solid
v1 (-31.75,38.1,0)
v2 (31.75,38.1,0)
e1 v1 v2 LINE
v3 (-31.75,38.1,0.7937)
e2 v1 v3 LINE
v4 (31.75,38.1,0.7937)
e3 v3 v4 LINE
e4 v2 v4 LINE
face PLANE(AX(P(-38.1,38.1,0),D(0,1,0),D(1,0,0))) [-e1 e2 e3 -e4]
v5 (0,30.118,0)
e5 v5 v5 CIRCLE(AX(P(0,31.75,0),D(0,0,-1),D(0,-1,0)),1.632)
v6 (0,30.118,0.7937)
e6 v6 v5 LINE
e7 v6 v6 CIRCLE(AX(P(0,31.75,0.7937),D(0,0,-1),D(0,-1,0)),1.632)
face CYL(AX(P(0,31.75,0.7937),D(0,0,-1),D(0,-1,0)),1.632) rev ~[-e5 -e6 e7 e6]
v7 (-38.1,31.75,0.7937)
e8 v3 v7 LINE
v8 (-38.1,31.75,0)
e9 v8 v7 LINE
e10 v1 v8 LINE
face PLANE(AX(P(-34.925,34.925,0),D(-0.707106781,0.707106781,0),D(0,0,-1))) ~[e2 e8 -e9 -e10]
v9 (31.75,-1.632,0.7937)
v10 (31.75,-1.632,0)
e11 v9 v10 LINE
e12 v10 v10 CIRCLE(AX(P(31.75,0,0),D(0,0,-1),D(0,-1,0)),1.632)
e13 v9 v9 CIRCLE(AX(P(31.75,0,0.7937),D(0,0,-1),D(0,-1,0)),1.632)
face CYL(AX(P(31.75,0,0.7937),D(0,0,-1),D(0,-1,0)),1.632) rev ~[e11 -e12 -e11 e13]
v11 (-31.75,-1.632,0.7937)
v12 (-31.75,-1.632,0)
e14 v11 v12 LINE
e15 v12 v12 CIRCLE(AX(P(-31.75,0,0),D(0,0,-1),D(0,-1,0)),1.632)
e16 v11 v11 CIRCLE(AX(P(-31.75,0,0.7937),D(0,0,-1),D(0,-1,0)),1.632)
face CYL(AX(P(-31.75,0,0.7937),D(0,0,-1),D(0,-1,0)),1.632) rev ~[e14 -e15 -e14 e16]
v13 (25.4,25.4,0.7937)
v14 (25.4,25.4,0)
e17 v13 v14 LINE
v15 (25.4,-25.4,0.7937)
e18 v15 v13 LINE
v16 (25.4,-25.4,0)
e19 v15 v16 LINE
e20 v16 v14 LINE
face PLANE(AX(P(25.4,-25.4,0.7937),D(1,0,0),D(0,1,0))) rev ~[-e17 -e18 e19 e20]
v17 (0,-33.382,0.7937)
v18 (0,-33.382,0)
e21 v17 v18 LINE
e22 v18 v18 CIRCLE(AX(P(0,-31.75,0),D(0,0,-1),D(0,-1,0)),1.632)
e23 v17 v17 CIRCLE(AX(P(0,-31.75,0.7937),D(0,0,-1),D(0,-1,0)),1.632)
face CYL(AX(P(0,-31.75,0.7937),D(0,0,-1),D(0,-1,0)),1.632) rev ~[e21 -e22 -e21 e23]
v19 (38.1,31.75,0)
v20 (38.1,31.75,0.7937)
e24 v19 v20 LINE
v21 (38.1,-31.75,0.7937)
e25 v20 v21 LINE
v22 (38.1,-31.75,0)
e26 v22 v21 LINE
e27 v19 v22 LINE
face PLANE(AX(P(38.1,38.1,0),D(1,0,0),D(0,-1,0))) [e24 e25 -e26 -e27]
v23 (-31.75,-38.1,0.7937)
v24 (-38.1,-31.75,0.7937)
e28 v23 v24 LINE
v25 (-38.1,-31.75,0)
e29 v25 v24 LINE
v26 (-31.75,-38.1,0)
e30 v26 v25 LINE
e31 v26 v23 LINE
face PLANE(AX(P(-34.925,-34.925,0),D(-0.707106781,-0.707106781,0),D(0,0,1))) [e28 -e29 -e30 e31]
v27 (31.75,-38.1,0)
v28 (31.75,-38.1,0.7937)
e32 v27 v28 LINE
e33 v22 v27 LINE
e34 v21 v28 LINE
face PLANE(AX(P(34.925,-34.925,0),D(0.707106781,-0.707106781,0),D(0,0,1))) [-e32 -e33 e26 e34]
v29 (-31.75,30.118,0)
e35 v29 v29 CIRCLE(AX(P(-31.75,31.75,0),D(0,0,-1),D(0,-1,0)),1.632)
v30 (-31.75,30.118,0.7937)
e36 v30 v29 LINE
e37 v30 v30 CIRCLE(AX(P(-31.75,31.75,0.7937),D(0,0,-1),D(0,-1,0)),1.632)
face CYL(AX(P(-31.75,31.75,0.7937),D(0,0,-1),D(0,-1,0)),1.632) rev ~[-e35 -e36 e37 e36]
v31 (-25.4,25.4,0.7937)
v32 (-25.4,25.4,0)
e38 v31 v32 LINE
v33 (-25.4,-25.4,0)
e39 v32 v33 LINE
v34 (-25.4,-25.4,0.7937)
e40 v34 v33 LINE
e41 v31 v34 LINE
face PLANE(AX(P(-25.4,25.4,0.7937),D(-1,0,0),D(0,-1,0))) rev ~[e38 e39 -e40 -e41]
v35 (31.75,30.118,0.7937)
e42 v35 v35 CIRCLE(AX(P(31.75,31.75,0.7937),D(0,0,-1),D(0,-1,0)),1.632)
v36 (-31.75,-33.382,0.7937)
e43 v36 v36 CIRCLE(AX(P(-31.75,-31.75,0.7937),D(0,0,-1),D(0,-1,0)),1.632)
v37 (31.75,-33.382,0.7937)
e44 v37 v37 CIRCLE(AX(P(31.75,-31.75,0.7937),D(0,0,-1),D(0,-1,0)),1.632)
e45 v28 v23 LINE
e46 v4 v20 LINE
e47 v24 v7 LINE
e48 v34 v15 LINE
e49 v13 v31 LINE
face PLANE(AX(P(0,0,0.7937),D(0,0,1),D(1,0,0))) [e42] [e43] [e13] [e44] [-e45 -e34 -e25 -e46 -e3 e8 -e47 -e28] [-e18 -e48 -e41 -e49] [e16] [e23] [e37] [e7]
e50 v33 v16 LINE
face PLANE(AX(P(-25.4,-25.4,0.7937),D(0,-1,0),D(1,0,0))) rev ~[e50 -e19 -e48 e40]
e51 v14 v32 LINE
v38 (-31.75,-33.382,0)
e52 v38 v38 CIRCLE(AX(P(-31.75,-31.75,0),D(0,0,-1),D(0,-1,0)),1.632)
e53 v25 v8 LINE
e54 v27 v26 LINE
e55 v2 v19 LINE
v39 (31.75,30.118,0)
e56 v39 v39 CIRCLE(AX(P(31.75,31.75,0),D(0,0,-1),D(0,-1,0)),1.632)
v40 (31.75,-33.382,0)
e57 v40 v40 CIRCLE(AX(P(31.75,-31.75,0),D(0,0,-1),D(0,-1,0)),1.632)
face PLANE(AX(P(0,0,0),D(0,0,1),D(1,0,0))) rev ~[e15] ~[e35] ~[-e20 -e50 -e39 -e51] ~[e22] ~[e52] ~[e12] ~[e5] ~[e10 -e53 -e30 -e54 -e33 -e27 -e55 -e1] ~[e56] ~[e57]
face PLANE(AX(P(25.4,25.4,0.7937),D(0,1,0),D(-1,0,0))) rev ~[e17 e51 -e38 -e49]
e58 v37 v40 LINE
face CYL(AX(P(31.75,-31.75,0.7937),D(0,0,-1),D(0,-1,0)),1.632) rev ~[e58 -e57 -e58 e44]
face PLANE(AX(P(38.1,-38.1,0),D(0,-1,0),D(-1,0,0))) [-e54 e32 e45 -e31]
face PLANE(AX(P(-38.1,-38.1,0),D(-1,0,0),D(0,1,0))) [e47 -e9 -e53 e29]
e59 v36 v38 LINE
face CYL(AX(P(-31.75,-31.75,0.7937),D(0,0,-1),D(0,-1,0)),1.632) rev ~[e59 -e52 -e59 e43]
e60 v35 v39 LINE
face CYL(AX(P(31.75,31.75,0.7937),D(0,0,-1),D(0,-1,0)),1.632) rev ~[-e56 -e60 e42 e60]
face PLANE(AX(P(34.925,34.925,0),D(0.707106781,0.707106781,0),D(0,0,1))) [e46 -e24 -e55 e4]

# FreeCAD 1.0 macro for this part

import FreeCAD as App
import Part
import Sketcher
Q = App.Units.Quantity


def edges_at(feature, points):
    """Names of the edges that pass closest to the given points."""
    edges = feature.Shape.Edges
    near = lambda p: min(range(len(edges)), key=lambda i: edges[i].distToShape(Part.Vertex(*p))[0])
    return sorted({f"Edge{near(p) + 1}" for p in points})


def add_polygon(sketch, points):
    """Adds a closed chain of lines whose ends are joined by coincident constraints."""
    first, n = sketch.GeometryCount, len(points)
    for a, b in zip(points, points[1:] + points[:1]):
        sketch.addGeometry(Part.LineSegment(App.Vector(*a, 0), App.Vector(*b, 0)), False)
    for i in range(n):
        sketch.addConstraint(Sketcher.Constraint("Coincident", first + i, 2, first + (i + 1) % n, 1))

doc = App.newDocument("Part")
body = doc.addObject("PartDesign::Body", "Body")

# Sketch on XY plane
sketch1 = body.newObject("Sketcher::SketchObject", "Sketch")
sketch1.AttachmentSupport = (doc.getObject("XY_Plane"), [""])
sketch1.MapMode = "FlatFace"
add_polygon(sketch1, [(38, 38), (-38, 38), (-38, -38), (38, -38)])  # lines 0-3
sketch1.addConstraint([
    Sketcher.Constraint("Horizontal", 0),
    Sketcher.Constraint("Vertical", 1),
    Sketcher.Constraint("Horizontal", 2),
    Sketcher.Constraint("Vertical", 3),
    Sketcher.Constraint("Symmetric", 0, 2, 2, 2, -1, 1),
    Sketcher.Constraint("Equal", 2, 1),
    Sketcher.Constraint("DistanceX", 0, 2, 0, 1, Q("3 in")),
])
pad1 = body.newObject("PartDesign::Pad", "Pad")
pad1.Profile = sketch1
pad1.Length = Q("0.031248 in")
doc.recompute()

chamfer = body.newObject("PartDesign::Chamfer", "Chamfer")
chamfer.Base = (pad1, edges_at(pad1, [
    (38.1, 38.1, 0.397),
    (-38.1, 38.1, 0.397),
    (38.1, -38.1, 0.397),
    (-38.1, -38.1, 0.397),
]))
chamfer.Size = Q("0.25 in")

# Sketch on XY plane
sketch2 = body.newObject("Sketcher::SketchObject", "Sketch001")
sketch2.AttachmentSupport = (doc.getObject("XY_Plane"), [""])
sketch2.MapMode = "FlatFace"
sketch2.AttachmentOffset = App.Placement(App.Vector(0, 0, 0.031248 * 25.4), App.Rotation())
sketch2.addGeometry([
    Part.Circle(App.Vector(-31.8, 31.8, 0), App.Vector(0, 0, 1), 1.6),  # 0
    Part.Circle(App.Vector(0, 31.8, 0), App.Vector(0, 0, 1), 1.6),  # 1
    Part.Circle(App.Vector(31.8, 31.8, 0), App.Vector(0, 0, 1), 1.6),  # 2
    Part.Circle(App.Vector(31.8, 0, 0), App.Vector(0, 0, 1), 1.6),  # 3
    Part.Circle(App.Vector(31.8, -31.8, 0), App.Vector(0, 0, 1), 1.6),  # 4
    Part.Circle(App.Vector(0, -31.8, 0), App.Vector(0, 0, 1), 1.6),  # 5
    Part.Circle(App.Vector(-31.8, -31.8, 0), App.Vector(0, 0, 1), 1.6),  # 6
    Part.Circle(App.Vector(-31.8, 0, 0), App.Vector(0, 0, 1), 1.6),  # 7
], False)
sketch2.addConstraint([
    Sketcher.Constraint("Equal", 0, 1),
    Sketcher.Constraint("Equal", 1, 2),
    Sketcher.Constraint("Equal", 2, 3),
    Sketcher.Constraint("Equal", 3, 4),
    Sketcher.Constraint("Equal", 4, 5),
    Sketcher.Constraint("Equal", 5, 6),
    Sketcher.Constraint("Equal", 6, 7),
    Sketcher.Constraint("Symmetric", 0, 3, 4, 3, -1, 1),
    Sketcher.Constraint("Symmetric", 1, 3, 5, 3, -1, 1),
    Sketcher.Constraint("Symmetric", 2, 3, 6, 3, -1, 1),
    Sketcher.Constraint("Symmetric", 3, 3, 7, 3, -1, 1),
    Sketcher.Constraint("Symmetric", 0, 3, 2, 3, -2),
    Sketcher.Constraint("PointOnObject", 1, 3, -2),
    Sketcher.Constraint("PointOnObject", 3, 3, -1),
    Sketcher.Constraint("Horizontal", 0, 3, 1, 3),
    Sketcher.Constraint("Vertical", 2, 3, 3, 3),
    Sketcher.Constraint("Diameter", 0, Q("0.1285 in")),
    Sketcher.Constraint("DistanceX", 0, 3, 2, 3, Q("2.5 in")),
    Sketcher.Constraint("DistanceY", 4, 3, 2, 3, Q("2.5 in")),
])
doc.recompute()
hole = body.newObject("PartDesign::Hole", "Hole")
hole.Profile = sketch2
hole.ThreadType = "None"
hole.Diameter = Q("0.1285039 in")
hole.DepthType = "ThroughAll"

# Sketch on XY plane
sketch3 = body.newObject("Sketcher::SketchObject", "Sketch002")
sketch3.AttachmentSupport = (doc.getObject("XY_Plane"), [""])
sketch3.MapMode = "FlatFace"
sketch3.AttachmentOffset = App.Placement(App.Vector(0, 0, 0.031248 * 25.4), App.Rotation())
add_polygon(sketch3, [(-25, 25), (-25, -25), (25, -25), (25, 25)])  # lines 0-3
sketch3.addConstraint([
    Sketcher.Constraint("Vertical", 0),
    Sketcher.Constraint("Horizontal", 1),
    Sketcher.Constraint("Vertical", 2),
    Sketcher.Constraint("Horizontal", 3),
    Sketcher.Constraint("Symmetric", 0, 2, 2, 2, -1, 1),
    Sketcher.Constraint("Equal", 3, 0),
    Sketcher.Constraint("DistanceX", 1, 1, 1, 2, Q("2 in")),
])
pocket1 = body.newObject("PartDesign::Pocket", "Pocket")
pocket1.Profile = sketch3
pocket1.Type = "ThroughAll"

doc.recompute()
